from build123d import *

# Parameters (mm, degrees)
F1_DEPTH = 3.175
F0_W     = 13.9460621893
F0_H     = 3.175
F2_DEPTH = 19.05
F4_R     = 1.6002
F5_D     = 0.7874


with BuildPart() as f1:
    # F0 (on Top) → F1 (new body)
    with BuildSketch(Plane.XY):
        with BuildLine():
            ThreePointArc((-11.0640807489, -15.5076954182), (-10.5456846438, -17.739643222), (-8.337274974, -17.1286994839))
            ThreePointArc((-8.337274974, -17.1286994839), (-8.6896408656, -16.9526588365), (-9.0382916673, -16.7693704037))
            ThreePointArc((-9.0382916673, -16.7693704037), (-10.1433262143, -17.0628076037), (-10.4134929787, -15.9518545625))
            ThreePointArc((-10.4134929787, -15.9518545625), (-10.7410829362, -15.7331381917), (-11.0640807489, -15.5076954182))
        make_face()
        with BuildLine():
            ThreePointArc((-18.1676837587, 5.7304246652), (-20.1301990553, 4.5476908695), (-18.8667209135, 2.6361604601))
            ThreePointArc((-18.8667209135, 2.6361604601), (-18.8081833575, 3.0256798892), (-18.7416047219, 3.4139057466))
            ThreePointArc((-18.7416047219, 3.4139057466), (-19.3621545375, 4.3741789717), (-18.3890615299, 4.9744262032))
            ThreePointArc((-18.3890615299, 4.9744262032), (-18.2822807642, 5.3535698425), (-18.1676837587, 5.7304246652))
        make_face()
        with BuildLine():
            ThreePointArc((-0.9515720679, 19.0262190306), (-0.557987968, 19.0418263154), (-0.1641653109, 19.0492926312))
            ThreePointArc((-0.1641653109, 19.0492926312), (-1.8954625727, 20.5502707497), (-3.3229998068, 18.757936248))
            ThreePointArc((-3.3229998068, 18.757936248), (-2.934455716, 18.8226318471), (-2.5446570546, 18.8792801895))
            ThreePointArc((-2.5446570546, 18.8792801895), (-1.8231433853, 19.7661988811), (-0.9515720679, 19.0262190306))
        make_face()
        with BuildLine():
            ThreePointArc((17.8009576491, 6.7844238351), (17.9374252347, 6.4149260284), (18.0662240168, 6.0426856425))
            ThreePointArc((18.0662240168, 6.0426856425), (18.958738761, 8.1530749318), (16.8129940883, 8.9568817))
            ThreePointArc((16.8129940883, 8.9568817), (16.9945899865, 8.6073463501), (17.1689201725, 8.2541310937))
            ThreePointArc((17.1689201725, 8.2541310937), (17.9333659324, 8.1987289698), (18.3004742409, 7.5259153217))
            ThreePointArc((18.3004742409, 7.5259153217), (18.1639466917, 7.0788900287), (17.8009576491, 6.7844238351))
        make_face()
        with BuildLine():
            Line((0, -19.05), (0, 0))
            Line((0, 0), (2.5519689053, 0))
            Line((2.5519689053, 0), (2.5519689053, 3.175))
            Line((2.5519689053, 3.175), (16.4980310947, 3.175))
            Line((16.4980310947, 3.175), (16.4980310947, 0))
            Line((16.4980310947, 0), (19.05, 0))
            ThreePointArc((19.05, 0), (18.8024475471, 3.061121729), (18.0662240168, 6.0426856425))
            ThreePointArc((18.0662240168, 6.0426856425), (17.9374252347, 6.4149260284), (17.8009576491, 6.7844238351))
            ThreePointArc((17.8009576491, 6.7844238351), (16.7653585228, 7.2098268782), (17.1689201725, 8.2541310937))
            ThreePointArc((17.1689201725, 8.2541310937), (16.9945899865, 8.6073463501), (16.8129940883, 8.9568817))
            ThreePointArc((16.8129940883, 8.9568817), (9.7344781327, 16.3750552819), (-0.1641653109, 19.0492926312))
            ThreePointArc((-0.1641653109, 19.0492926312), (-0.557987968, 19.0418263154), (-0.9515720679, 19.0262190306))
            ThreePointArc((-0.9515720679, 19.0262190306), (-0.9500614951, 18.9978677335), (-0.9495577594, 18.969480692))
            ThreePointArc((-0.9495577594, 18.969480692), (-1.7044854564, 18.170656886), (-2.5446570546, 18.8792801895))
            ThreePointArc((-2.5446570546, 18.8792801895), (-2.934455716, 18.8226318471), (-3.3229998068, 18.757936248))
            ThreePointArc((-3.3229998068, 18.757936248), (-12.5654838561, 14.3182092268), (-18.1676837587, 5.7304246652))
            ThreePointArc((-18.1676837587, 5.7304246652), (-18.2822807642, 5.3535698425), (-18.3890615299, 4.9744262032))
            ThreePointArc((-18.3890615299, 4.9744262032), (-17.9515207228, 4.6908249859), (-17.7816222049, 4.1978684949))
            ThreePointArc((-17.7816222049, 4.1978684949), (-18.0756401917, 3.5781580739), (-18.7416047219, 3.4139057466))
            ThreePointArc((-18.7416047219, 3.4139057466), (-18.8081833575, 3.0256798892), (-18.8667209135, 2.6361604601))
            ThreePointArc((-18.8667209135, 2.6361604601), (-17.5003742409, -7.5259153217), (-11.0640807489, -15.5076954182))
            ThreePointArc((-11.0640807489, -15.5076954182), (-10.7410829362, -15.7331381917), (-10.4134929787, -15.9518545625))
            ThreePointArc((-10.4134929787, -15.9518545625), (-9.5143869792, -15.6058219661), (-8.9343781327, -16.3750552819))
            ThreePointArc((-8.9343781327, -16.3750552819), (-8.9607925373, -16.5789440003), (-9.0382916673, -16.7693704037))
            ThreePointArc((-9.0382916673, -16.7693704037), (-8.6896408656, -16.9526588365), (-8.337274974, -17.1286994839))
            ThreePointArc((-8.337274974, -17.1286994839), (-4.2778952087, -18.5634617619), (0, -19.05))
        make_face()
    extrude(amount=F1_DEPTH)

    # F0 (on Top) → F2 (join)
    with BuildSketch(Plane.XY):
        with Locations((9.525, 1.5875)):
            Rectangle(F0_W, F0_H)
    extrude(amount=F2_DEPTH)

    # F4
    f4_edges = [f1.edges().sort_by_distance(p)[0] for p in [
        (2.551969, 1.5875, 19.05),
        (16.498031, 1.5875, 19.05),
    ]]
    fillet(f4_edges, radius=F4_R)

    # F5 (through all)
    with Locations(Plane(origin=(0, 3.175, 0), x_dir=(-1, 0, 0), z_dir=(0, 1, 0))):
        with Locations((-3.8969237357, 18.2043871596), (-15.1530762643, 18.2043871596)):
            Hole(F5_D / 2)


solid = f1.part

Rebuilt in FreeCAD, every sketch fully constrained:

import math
import FreeCAD as App
import Part
import Sketcher
Q = App.Units.Quantity


def edges_at(feature, points):
    """Names of the edges that pass closest to the given points."""
    edges = feature.Shape.Edges
    near = lambda p: min(range(len(edges)), key=lambda i: edges[i].distToShape(Part.Vertex(*p))[0])
    return sorted({f"Edge{near(p) + 1}" for p in points})

doc = App.newDocument("Part")
body = doc.addObject("PartDesign::Body", "Body")

# Sketch on XY plane
sketch1 = body.newObject("Sketcher::SketchObject", "Sketch")
sketch1.AttachmentSupport = (doc.getObject("XY_Plane"), [""])
sketch1.MapMode = "FlatFace"
sketch1.addGeometry([
    Part.ArcOfCircle(Part.Circle(App.Vector(-9.73, -16.38, 0), App.Vector(0, 0, 1), 1.59), math.radians(147), math.radians(332)),  # 0
    Part.ArcOfCircle(Part.Circle(App.Vector(0, 0, 0), App.Vector(0, 0, 1), 19.05), math.radians(-116), math.radians(-90)),  # 1
    Part.LineSegment(App.Vector(0, -19.05, 0), App.Vector(0, 0, 0)),  # 2
    Part.LineSegment(App.Vector(0, 0, 0), App.Vector(2.55, 0, 0)),  # 3
    Part.LineSegment(App.Vector(2.55, 0, 0), App.Vector(2.55, 3.17, 0)),  # 4
    Part.LineSegment(App.Vector(2.55, 3.17, 0), App.Vector(16.5, 3.17, 0)),  # 5
    Part.LineSegment(App.Vector(16.5, 3.17, 0), App.Vector(16.5, 0, 0)),  # 6
    Part.LineSegment(App.Vector(16.5, 0, 0), App.Vector(19.05, 0, 0)),  # 7
    Part.ArcOfCircle(Part.Circle(App.Vector(0, 0, 0), App.Vector(0, 0, 1), 19.05), math.radians(0), math.radians(18.49)),  # 8
    Part.ArcOfCircle(Part.Circle(App.Vector(17.5, 7.53, 0), App.Vector(0, 0, 1), 1.59), math.radians(-69), math.radians(116)),  # 9
    Part.ArcOfCircle(Part.Circle(App.Vector(0, 0, 0), App.Vector(0, 0, 1), 19.05), math.radians(28), math.radians(90)),  # 10
    Part.ArcOfCircle(Part.Circle(App.Vector(-1.75, 18.97, 0), App.Vector(0, 0, 1), 1.59), math.radians(3), math.radians(188)),  # 11
    Part.ArcOfCircle(Part.Circle(App.Vector(0, 0, 0), App.Vector(0, 0, 1), 19.05), math.radians(100), math.radians(162)),  # 12
    Part.ArcOfCircle(Part.Circle(App.Vector(-18.58, 4.2, 0), App.Vector(0, 0, 1), 1.59), math.radians(75), math.radians(260)),  # 13
    Part.ArcOfCircle(Part.Circle(App.Vector(0, 0, 0), App.Vector(0, 0, 1), 19.05), math.radians(172), math.radians(234)),  # 14
    Part.ArcOfCircle(Part.Circle(App.Vector(-9.73, -16.38, 0), App.Vector(0, 0, 1), 0.8), math.radians(148), math.radians(330)),  # 15
    Part.ArcOfCircle(Part.Circle(App.Vector(-9.73, -16.38, 0), App.Vector(0, 0, 1), 0.8), math.radians(0), math.radians(148)),  # 16
    Part.ArcOfCircle(Part.Circle(App.Vector(-9.73, -16.38, 0), App.Vector(0, 0, 1), 0.8), math.radians(-30), math.radians(0)),  # 17
    Part.ArcOfCircle(Part.Circle(App.Vector(17.5, 7.53, 0), App.Vector(0, 0, 1), 0.8), math.radians(114), math.radians(292)),  # 18
    Part.ArcOfCircle(Part.Circle(App.Vector(17.5, 7.53, 0), App.Vector(0, 0, 1), 0.8), math.radians(0), math.radians(114)),  # 19
    Part.ArcOfCircle(Part.Circle(App.Vector(17.5, 7.53, 0), App.Vector(0, 0, 1), 0.8), math.radians(-68), math.radians(0)),  # 20
    Part.ArcOfCircle(Part.Circle(App.Vector(-1.75, 18.97, 0), App.Vector(0, 0, 1), 0.8), math.radians(0), math.radians(4.07)),  # 21
    Part.ArcOfCircle(Part.Circle(App.Vector(-1.75, 18.97, 0), App.Vector(0, 0, 1), 0.8), math.radians(-174), math.radians(0)),  # 22
    Part.ArcOfCircle(Part.Circle(App.Vector(-1.75, 18.97, 0), App.Vector(0, 0, 1), 0.8), math.radians(4), math.radians(186)),  # 23
    Part.ArcOfCircle(Part.Circle(App.Vector(-18.58, 4.2, 0), App.Vector(0, 0, 1), 0.8), math.radians(0), math.radians(76)),  # 24
    Part.ArcOfCircle(Part.Circle(App.Vector(-18.58, 4.2, 0), App.Vector(0, 0, 1), 0.8), math.radians(-102), math.radians(0)),  # 25
    Part.ArcOfCircle(Part.Circle(App.Vector(-18.58, 4.2, 0), App.Vector(0, 0, 1), 0.8), math.radians(76), math.radians(258)),  # 26
], False)
sketch1.addConstraint([
    Sketcher.Constraint("Coincident", 0, 2, 1, 1),
    Sketcher.Constraint("Coincident", 1, 2, 2, 1),
    Sketcher.Constraint("Coincident", 2, 2, 3, 1),
    Sketcher.Constraint("Coincident", 3, 2, 4, 1),
    Sketcher.Constraint("Coincident", 4, 2, 5, 1),
    Sketcher.Constraint("Coincident", 5, 2, 6, 1),
    Sketcher.Constraint("Coincident", 6, 2, 7, 1),
    Sketcher.Constraint("Coincident", 7, 2, 8, 1),
    Sketcher.Constraint("Coincident", 8, 2, 9, 1),
    Sketcher.Constraint("Coincident", 9, 2, 10, 1),
    Sketcher.Constraint("Coincident", 10, 2, 11, 1),
    Sketcher.Constraint("Coincident", 11, 2, 12, 1),
    Sketcher.Constraint("Coincident", 12, 2, 13, 1),
    Sketcher.Constraint("Coincident", 13, 2, 14, 1),
    Sketcher.Constraint("Coincident", 14, 2, 0, 1),
    Sketcher.Constraint("Tangent", 15, 1, 16, 2),
    Sketcher.Constraint("Tangent", 16, 1, 17, 2),
    Sketcher.Constraint("Tangent", 17, 1, 15, 2),
    Sketcher.Constraint("Tangent", 18, 1, 19, 2),
    Sketcher.Constraint("Tangent", 19, 1, 20, 2),
    Sketcher.Constraint("Tangent", 20, 1, 18, 2),
    Sketcher.Constraint("Tangent", 21, 1, 22, 2),
    Sketcher.Constraint("Tangent", 22, 1, 23, 2),
    Sketcher.Constraint("Tangent", 23, 1, 21, 2),
    Sketcher.Constraint("Tangent", 24, 1, 25, 2),
    Sketcher.Constraint("Tangent", 25, 1, 26, 2),
    Sketcher.Constraint("Tangent", 26, 1, 24, 2),
    Sketcher.Constraint("Vertical", 2),
    Sketcher.Constraint("Horizontal", 3),
    Sketcher.Constraint("Vertical", 4),
    Sketcher.Constraint("Horizontal", 5),
    Sketcher.Constraint("Vertical", 6),
    Sketcher.Constraint("Horizontal", 7),
    Sketcher.Constraint("Coincident", 1, 3, -1, 1),
    Sketcher.Constraint("Coincident", 8, 3, -1, 1),
    Sketcher.Constraint("Coincident", 10, 3, -1, 1),
    Sketcher.Constraint("Coincident", 12, 3, -1, 1),
    Sketcher.Constraint("Coincident", 14, 3, -1, 1),
    Sketcher.Constraint("Coincident", 2, 2, -1, 1),
    Sketcher.Constraint("Coincident", 15, 3, 0, 3),
    Sketcher.Constraint("Coincident", 18, 3, 9, 3),
    Sketcher.Constraint("Coincident", 21, 3, 11, 3),
    Sketcher.Constraint("Coincident", 24, 3, 13, 3),
    Sketcher.Constraint("Equal", 1, 8),
    Sketcher.Constraint("Equal", 0, 9),
    Sketcher.Constraint("Equal", 8, 10),
    Sketcher.Constraint("Equal", 9, 11),
    Sketcher.Constraint("Equal", 10, 12),
    Sketcher.Constraint("Equal", 11, 13),
    Sketcher.Constraint("Equal", 12, 14),
    Sketcher.Constraint("Equal", 17, 18),
    Sketcher.Constraint("Equal", 20, 21),
    Sketcher.Constraint("Equal", 23, 24),
    Sketcher.Constraint("PointOnObject", 6, 2, -1),
    Sketcher.Constraint("Horizontal", 17, 3, 16, 1),
    Sketcher.Constraint("Horizontal", 20, 3, 19, 1),
    Sketcher.Constraint("Horizontal", 23, 3, 21, 1),
    Sketcher.Constraint("Horizontal", 26, 3, 24, 1),
    Sketcher.Constraint("Equal", 3, 7),
    Sketcher.Constraint("Radius", 1, Q("0.75 in")),
    Sketcher.Constraint("Radius", 0, Q("0.0625 in")),
    Sketcher.Constraint("Radius", 15, Q("0.0315 in")),
    Sketcher.Constraint("DistanceY", 4, 1, 4, 2, Q("0.125 in")),
    Sketcher.Constraint("DistanceX", 3, 1, 3, 2, Q("2.551969 mm")),
    Sketcher.Constraint("DistanceY", 0, 2, -1, 1, Q("17.128699 mm")),
    Sketcher.Constraint("DistanceX", 11, 2, -1, 1, Q("3.323 mm")),
    Sketcher.Constraint("DistanceX", 13, 2, 13, 3, Q("0.284999 mm")),
    Sketcher.Constraint("DistanceY", 0, 3, 15, 1, Q("0.423201 mm")),
    Sketcher.Constraint("DistanceX", 22, 1, 21, 3, Q("0.794999 mm")),
    Sketcher.Constraint("DistanceY", 26, 1, 12, 2, Q("0.755998 mm")),
    Sketcher.Constraint("DistanceX", 0, 3, -1, 1, Q("9.734478 mm")),
    Sketcher.Constraint("DistanceY", -1, 1, 11, 3, Q("18.969481 mm")),
    Sketcher.Constraint("DistanceY", -1, 1, 13, 3, Q("4.197868 mm")),
    Sketcher.Constraint("DistanceY", -1, 1, 9, 2, Q("8.956882 mm")),
    Sketcher.Constraint("DistanceX", 17, 1, -1, 1, Q("9.038292 mm")),
    Sketcher.Constraint("DistanceX", -1, 1, 18, 1, Q("17.16892 mm")),
    Sketcher.Constraint("DistanceY", -1, 1, 18, 1, Q("8.254131 mm")),
    Sketcher.Constraint("DistanceY", -1, 1, 23, 1, Q("19.026219 mm")),
    Sketcher.Constraint("DistanceY", 8, 2, 20, 1, Q("0.741738 mm")),
    Sketcher.Constraint("DistanceX", 25, 1, -1, 1, Q("18.741605 mm")),
])
pad1 = body.newObject("PartDesign::Pad", "Pad")
pad1.Profile = sketch1
pad1.Length = Q("0.125 in")

# Sketch on XY plane
sketch2 = body.newObject("Sketcher::SketchObject", "Sketch001")
sketch2.AttachmentSupport = (doc.getObject("XY_Plane"), [""])
sketch2.MapMode = "FlatFace"
sketch2.addGeometry([
    Part.LineSegment(App.Vector(2.6, 3.2, 0), App.Vector(2.6, 0, 0)),
    Part.LineSegment(App.Vector(2.6, 0, 0), App.Vector(16.5, 0, 0)),
    Part.LineSegment(App.Vector(16.5, 0, 0), App.Vector(16.5, 3.2, 0)),
    Part.LineSegment(App.Vector(16.5, 3.2, 0), App.Vector(2.6, 3.2, 0)),
], False)
sketch2.addConstraint([
    Sketcher.Constraint("Coincident", 0, 2, 1, 1),
    Sketcher.Constraint("Coincident", 1, 2, 2, 1),
    Sketcher.Constraint("Coincident", 2, 2, 3, 1),
    Sketcher.Constraint("Coincident", 3, 2, 0, 1),
    Sketcher.Constraint("Vertical", 0),
    Sketcher.Constraint("Horizontal", 1),
    Sketcher.Constraint("Vertical", 2),
    Sketcher.Constraint("Horizontal", 3),
    Sketcher.Constraint("PointOnObject", 0, 2, -1),
    Sketcher.Constraint("DistanceY", 0, 2, 0, 1, Q("0.125 in")),
    Sketcher.Constraint("DistanceX", 1, 1, 1, 2, Q("13.946062 mm")),
    Sketcher.Constraint("DistanceX", -1, 1, 0, 2, Q("2.551969 mm")),
])
pad2 = body.newObject("PartDesign::Pad", "Pad001")
pad2.Profile = sketch2
pad2.Length = Q("0.75 in")
doc.recompute()

fillet = body.newObject("PartDesign::Fillet", "Fillet")
fillet.Base = (pad2, edges_at(pad2, [(2.552, 1.587, 19.05), (16.498, 1.587, 19.05)]))
fillet.Radius = Q("0.063 in")

# Sketch on XZ plane
sketch3 = body.newObject("Sketcher::SketchObject", "Sketch002")
sketch3.AttachmentSupport = (doc.getObject("XZ_Plane"), [""])
sketch3.MapMode = "FlatFace"
sketch3.AttachmentOffset = App.Placement(App.Vector(0, 0, -0.125 * 25.4), App.Rotation())
sketch3.addGeometry([
    Part.Circle(App.Vector(3.9, 18.2, 0), App.Vector(0, 0, 1), 0.39),
    Part.Circle(App.Vector(15.15, 18.2, 0), App.Vector(0, 0, 1), 0.39),
], False)
sketch3.addConstraint([
    Sketcher.Constraint("Equal", 0, 1),
    Sketcher.Constraint("Horizontal", 0, 3, 1, 3),
    Sketcher.Constraint("Diameter", 0, Q("0.031 in")),
    Sketcher.Constraint("DistanceX", -1, 1, 0, 3, Q("3.896924 mm")),
    Sketcher.Constraint("DistanceY", -1, 1, 0, 3, Q("18.204387 mm")),
    Sketcher.Constraint("DistanceX", -1, 1, 1, 3, Q("15.153076 mm")),
])
doc.recompute()
hole = body.newObject("PartDesign::Hole", "Hole")
hole.Profile = sketch3
hole.ThreadType = "None"
hole.Diameter = Q("0.031 in")
hole.DepthType = "ThroughAll"
hole.Reversed = True

doc.recompute()
